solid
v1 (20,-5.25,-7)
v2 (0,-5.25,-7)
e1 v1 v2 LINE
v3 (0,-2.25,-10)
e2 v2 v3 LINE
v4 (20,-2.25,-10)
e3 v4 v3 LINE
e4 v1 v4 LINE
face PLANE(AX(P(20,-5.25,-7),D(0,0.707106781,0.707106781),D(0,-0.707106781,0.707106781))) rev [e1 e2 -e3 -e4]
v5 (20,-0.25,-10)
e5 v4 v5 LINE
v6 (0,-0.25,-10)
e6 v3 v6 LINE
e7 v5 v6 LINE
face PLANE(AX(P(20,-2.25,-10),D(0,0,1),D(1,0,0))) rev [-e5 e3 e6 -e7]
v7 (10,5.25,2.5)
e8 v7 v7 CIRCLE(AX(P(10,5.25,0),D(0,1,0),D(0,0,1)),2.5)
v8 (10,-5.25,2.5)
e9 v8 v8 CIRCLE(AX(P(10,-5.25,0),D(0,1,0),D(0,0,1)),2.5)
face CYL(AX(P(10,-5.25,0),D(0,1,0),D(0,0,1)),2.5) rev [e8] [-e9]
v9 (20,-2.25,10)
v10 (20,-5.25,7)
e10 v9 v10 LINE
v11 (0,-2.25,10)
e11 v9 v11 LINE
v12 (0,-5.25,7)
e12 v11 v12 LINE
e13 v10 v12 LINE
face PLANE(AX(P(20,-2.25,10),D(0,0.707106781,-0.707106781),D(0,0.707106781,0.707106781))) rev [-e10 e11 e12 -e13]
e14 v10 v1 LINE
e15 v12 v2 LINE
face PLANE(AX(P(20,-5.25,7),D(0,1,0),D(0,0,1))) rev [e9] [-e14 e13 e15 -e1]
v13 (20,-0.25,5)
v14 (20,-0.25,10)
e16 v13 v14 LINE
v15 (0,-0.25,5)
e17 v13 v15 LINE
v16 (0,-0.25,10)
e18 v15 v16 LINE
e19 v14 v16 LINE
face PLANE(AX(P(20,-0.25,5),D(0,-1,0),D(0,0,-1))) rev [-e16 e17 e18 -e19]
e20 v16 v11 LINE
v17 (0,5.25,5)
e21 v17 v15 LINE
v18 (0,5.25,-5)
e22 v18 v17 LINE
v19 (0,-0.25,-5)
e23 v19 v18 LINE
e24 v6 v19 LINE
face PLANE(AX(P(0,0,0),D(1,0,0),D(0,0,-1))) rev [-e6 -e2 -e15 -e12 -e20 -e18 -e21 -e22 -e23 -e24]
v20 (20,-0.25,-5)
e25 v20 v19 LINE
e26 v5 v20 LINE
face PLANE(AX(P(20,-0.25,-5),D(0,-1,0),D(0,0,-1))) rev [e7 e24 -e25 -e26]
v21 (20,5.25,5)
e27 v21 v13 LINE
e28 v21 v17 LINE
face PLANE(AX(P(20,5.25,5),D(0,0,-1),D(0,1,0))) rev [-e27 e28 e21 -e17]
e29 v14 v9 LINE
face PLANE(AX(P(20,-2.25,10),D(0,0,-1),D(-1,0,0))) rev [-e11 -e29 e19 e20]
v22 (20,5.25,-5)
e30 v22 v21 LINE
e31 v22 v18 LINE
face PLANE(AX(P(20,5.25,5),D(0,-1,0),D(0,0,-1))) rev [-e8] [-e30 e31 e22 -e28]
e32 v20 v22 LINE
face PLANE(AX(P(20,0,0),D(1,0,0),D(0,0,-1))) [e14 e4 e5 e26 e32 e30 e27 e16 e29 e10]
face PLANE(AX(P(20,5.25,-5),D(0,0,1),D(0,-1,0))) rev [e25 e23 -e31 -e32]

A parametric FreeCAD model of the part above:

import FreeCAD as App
import Part
import Sketcher
from FreeCAD import Vector

doc = App.newDocument("Part")
body = doc.addObject("PartDesign::Body", "Body")

sketch1 = body.newObject("Sketcher::SketchObject", "Sketch")
sketch1.AttachmentSupport = (doc.getObject("YZ_Plane"), [""])
sketch1.MapMode = "FlatFace"
sketch1.addGeometry([
    Part.LineSegment(Vector(-5.2, 7, 0), Vector(-5.2, -7, 0)),
    Part.LineSegment(Vector(-5.2, -7, 0), Vector(-2.2, -10, 0)),
    Part.LineSegment(Vector(-2.2, -10, 0), Vector(-0.2, -10, 0)),
    Part.LineSegment(Vector(-0.2, -10, 0), Vector(-0.2, -5, 0)),
    Part.LineSegment(Vector(-0.2, -5, 0), Vector(5.2, -5, 0)),
    Part.LineSegment(Vector(5.2, -5, 0), Vector(5.2, 5, 0)),
    Part.LineSegment(Vector(5.2, 5, 0), Vector(-0.2, 5, 0)),
    Part.LineSegment(Vector(-0.2, 5, 0), Vector(-0.2, 10, 0)),
    Part.LineSegment(Vector(-0.2, 10, 0), Vector(-2.2, 10, 0)),
    Part.LineSegment(Vector(-2.2, 10, 0), Vector(-5.2, 7, 0)),
], False)
sketch1.addConstraint([
    Sketcher.Constraint("Coincident", 0, 2, 1, 1),
    Sketcher.Constraint("Coincident", 1, 2, 2, 1),
    Sketcher.Constraint("Coincident", 2, 2, 3, 1),
    Sketcher.Constraint("Coincident", 3, 2, 4, 1),
    Sketcher.Constraint("Coincident", 4, 2, 5, 1),
    Sketcher.Constraint("Coincident", 5, 2, 6, 1),
    Sketcher.Constraint("Coincident", 6, 2, 7, 1),
    Sketcher.Constraint("Coincident", 7, 2, 8, 1),
    Sketcher.Constraint("Coincident", 8, 2, 9, 1),
    Sketcher.Constraint("Coincident", 9, 2, 0, 1),
    Sketcher.Constraint("Vertical", 0),
    Sketcher.Constraint("Horizontal", 2),
    Sketcher.Constraint("Vertical", 3),
    Sketcher.Constraint("Horizontal", 4),
    Sketcher.Constraint("Vertical", 5),
    Sketcher.Constraint("Horizontal", 6),
    Sketcher.Constraint("Vertical", 7),
    Sketcher.Constraint("Horizontal", 8),
    Sketcher.Constraint("Symmetric", 3, 2, 6, 2, -1),
    Sketcher.Constraint("Symmetric", 1, 2, 8, 2, -1),
    Sketcher.Constraint("Perpendicular", 1, 9),
    Sketcher.Constraint("Equal", 1, 9),
    Sketcher.Constraint("DistanceX", 2, 1, 2, 2, 2.0),
    Sketcher.Constraint("DistanceY", 0, 2, 0, 1, 14.0),
    Sketcher.Constraint("DistanceY", 3, 1, 3, 2, 5.0),
    Sketcher.Constraint("DistanceY", 5, 1, 5, 2, 10.0),
    Sketcher.Constraint("DistanceX", 4, 1, 4, 2, 5.5),
    Sketcher.Constraint("DistanceX", 0, 2, -1, 1, 5.25),
])
pad1 = body.newObject("PartDesign::Pad", "Pad")
pad1.Profile = sketch1
pad1.Length = 20

sketch2 = body.newObject("Sketcher::SketchObject", "Sketch001")
sketch2.AttachmentSupport = (doc.getObject("XZ_Plane"), [""])
sketch2.MapMode = "FlatFace"
sketch2.AttachmentOffset = App.Placement(Vector(0, 0, -5.25), App.Rotation())
sketch2.addGeometry(Part.Circle(Vector(10, 0, 0), Vector(0, 0, 1), 2.5), False)
sketch2.addConstraint([
    Sketcher.Constraint("PointOnObject", 0, 3, -1),
    Sketcher.Constraint("Diameter", 0, 5.0),
    Sketcher.Constraint("DistanceX", -1, 1, 0, 3, 10.0),
])
pocket1 = body.newObject("PartDesign::Pocket", "Pocket")
pocket1.Profile = sketch2
pocket1.Type = "ThroughAll"
pocket1.Reversed = True

doc.recompute()
